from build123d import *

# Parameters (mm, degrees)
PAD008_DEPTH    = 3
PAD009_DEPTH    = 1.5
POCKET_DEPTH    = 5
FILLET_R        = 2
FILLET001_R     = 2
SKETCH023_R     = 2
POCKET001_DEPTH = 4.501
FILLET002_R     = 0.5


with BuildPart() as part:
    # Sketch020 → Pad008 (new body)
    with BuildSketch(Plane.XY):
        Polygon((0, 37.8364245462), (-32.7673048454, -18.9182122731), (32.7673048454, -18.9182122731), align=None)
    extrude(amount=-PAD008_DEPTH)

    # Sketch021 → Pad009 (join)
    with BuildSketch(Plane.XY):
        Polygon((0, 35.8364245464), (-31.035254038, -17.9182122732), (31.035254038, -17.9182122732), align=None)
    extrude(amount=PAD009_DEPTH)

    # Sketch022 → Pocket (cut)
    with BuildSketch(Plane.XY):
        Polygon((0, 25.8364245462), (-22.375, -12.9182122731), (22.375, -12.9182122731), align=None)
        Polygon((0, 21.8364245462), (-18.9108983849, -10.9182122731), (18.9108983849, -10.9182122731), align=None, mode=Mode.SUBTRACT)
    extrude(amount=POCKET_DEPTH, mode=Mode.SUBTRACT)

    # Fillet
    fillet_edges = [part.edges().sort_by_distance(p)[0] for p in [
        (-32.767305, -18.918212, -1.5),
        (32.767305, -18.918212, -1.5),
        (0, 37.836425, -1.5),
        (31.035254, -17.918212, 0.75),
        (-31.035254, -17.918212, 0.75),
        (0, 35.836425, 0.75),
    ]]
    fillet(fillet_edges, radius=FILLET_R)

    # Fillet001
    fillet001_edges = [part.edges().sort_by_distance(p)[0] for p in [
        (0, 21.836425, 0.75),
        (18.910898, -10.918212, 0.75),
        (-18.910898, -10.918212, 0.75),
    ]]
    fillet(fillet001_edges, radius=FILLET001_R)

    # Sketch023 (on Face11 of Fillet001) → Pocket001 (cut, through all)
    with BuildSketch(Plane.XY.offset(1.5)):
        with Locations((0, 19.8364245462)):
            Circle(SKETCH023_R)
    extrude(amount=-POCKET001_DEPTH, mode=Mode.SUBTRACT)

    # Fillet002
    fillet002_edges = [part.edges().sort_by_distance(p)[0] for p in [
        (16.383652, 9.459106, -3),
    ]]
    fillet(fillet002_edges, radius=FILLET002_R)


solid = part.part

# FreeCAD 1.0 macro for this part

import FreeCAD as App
import Part
import Sketcher
from FreeCAD import Vector
Q = App.Units.Quantity


def edges_at(feature, points):
    """Names of the edges that pass closest to the given points."""
    edges = feature.Shape.Edges
    near = lambda p: min(range(len(edges)), key=lambda i: edges[i].distToShape(Part.Vertex(*p))[0])
    return sorted({f"Edge{near(p) + 1}" for p in points})

doc = App.newDocument("Part")
body = doc.addObject("PartDesign::Body", "Body")

# Sketch on XY plane
sketch1 = body.newObject("Sketcher::SketchObject", "Sketch")
sketch1.AttachmentSupport = (doc.getObject("XY_Plane"), [""])
sketch1.MapMode = "FlatFace"
sketch1.addGeometry(Part.LineSegment(Vector(0, 38, 0), Vector(-33, -19, 0)), False)
sketch1.addGeometry(Part.LineSegment(Vector(-33, -19, 0), Vector(33, -19, 0)), False)
sketch1.addGeometry(Part.LineSegment(Vector(33, -19, 0), Vector(0, 38, 0)), False)
sketch1.addConstraint(Sketcher.Constraint("Coincident", 0, 2, 1, 1))
sketch1.addConstraint(Sketcher.Constraint("Coincident", 1, 2, 2, 1))
sketch1.addConstraint(Sketcher.Constraint("Coincident", 2, 2, 0, 1))
sketch1.addConstraint(Sketcher.Constraint("Horizontal", 1))
sketch1.addConstraint(Sketcher.Constraint("PointOnObject", 2, 2, -2))
sketch1.addConstraint(Sketcher.Constraint("Equal", 0, 2))
sketch1.addConstraint(Sketcher.Constraint("Angle", 0, Q("-120 deg")))
sketch1.addConstraint(Sketcher.Constraint("DistanceX", 1, 1, 1, 2, 65.53461))
sketch1.addConstraint(Sketcher.Constraint("DistanceY", 0, 2, -1, 1, 18.918212))
pad1 = body.newObject("PartDesign::Pad", "Pad")
pad1.Profile = sketch1
pad1.Length = 3
pad1.Reversed = True

# Sketch on XY plane
sketch2 = body.newObject("Sketcher::SketchObject", "Sketch001")
sketch2.AttachmentSupport = (doc.getObject("XY_Plane"), [""])
sketch2.MapMode = "FlatFace"
sketch2.addGeometry(Part.LineSegment(Vector(0, 36, 0), Vector(-31, -18, 0)), False)
sketch2.addGeometry(Part.LineSegment(Vector(-31, -18, 0), Vector(31, -18, 0)), False)
sketch2.addGeometry(Part.LineSegment(Vector(31, -18, 0), Vector(0, 36, 0)), False)
sketch2.addConstraint(Sketcher.Constraint("Coincident", 0, 2, 1, 1))
sketch2.addConstraint(Sketcher.Constraint("Coincident", 1, 2, 2, 1))
sketch2.addConstraint(Sketcher.Constraint("Coincident", 2, 2, 0, 1))
sketch2.addConstraint(Sketcher.Constraint("Horizontal", 1))
sketch2.addConstraint(Sketcher.Constraint("PointOnObject", 2, 2, -2))
sketch2.addConstraint(Sketcher.Constraint("Equal", 0, 2))
sketch2.addConstraint(Sketcher.Constraint("Angle", 0, Q("-120 deg")))
sketch2.addConstraint(Sketcher.Constraint("DistanceX", 1, 1, 1, 2, 62.070508))
sketch2.addConstraint(Sketcher.Constraint("DistanceY", 0, 2, -1, 1, 17.918212))
pad2 = body.newObject("PartDesign::Pad", "Pad001")
pad2.Profile = sketch2
pad2.Length = 1.5

# Sketch on XY plane
sketch3 = body.newObject("Sketcher::SketchObject", "Sketch002")
sketch3.AttachmentSupport = (doc.getObject("XY_Plane"), [""])
sketch3.MapMode = "FlatFace"
sketch3.addGeometry(Part.LineSegment(Vector(0, 26, 0), Vector(-22, -13, 0)), False)
sketch3.addGeometry(Part.LineSegment(Vector(-22, -13, 0), Vector(22, -13, 0)), False)
sketch3.addGeometry(Part.LineSegment(Vector(22, -13, 0), Vector(0, 26, 0)), False)
sketch3.addGeometry(Part.LineSegment(Vector(-19, -11, 0), Vector(0, 22, 0)), False)
sketch3.addGeometry(Part.LineSegment(Vector(0, 22, 0), Vector(19, -11, 0)), False)
sketch3.addGeometry(Part.LineSegment(Vector(19, -11, 0), Vector(-19, -11, 0)), False)
sketch3.addConstraint(Sketcher.Constraint("Coincident", 0, 2, 1, 1))
sketch3.addConstraint(Sketcher.Constraint("Coincident", 1, 2, 2, 1))
sketch3.addConstraint(Sketcher.Constraint("Coincident", 2, 2, 0, 1))
sketch3.addConstraint(Sketcher.Constraint("Coincident", 3, 2, 4, 1))
sketch3.addConstraint(Sketcher.Constraint("Coincident", 4, 2, 5, 1))
sketch3.addConstraint(Sketcher.Constraint("Coincident", 5, 2, 3, 1))
sketch3.addConstraint(Sketcher.Constraint("Horizontal", 1))
sketch3.addConstraint(Sketcher.Constraint("Horizontal", 5))
sketch3.addConstraint(Sketcher.Constraint("PointOnObject", 2, 2, -2))
sketch3.addConstraint(Sketcher.Constraint("PointOnObject", 3, 2, -2))
sketch3.addConstraint(Sketcher.Constraint("Parallel", 0, 3))
sketch3.addConstraint(Sketcher.Constraint("Parallel", 2, 4))
sketch3.addConstraint(Sketcher.Constraint("Equal", 0, 2))
sketch3.addConstraint(Sketcher.Constraint("Angle", 0, Q("-120 deg")))
sketch3.addConstraint(Sketcher.Constraint("DistanceY", 3, 2, 2, 2, 4.0))
sketch3.addConstraint(Sketcher.Constraint("DistanceY", 1, 2, 4, 2, 2.0))
sketch3.addConstraint(Sketcher.Constraint("DistanceX", 1, 1, 1, 2, 44.75))
sketch3.addConstraint(Sketcher.Constraint("DistanceY", 0, 2, -1, 1, 12.918212))
pocket1 = body.newObject("PartDesign::Pocket", "Pocket")
pocket1.Profile = sketch3
pocket1.Length = 5
pocket1.Reversed = True
doc.recompute()

fillet = body.newObject("PartDesign::Fillet", "Fillet")
fillet.Base = (pocket1, edges_at(pocket1, [
    (-32.767, -18.918, -1.5),
    (32.767, -18.918, -1.5),
    (0, 37.836, -1.5),
    (31.035, -17.918, 0.75),
    (-31.035, -17.918, 0.75),
    (0, 35.836, 0.75),
]))
fillet.Radius = 2
doc.recompute()

fillet2 = body.newObject("PartDesign::Fillet", "Fillet001")
fillet2.Base = (fillet, edges_at(fillet, [(0, 21.836, 0.75), (18.911, -10.918, 0.75), (-18.911, -10.918, 0.75)]))
fillet2.Radius = 2

# Sketch on XY plane
sketch4 = body.newObject("Sketcher::SketchObject", "Sketch003")
sketch4.AttachmentSupport = (doc.getObject("XY_Plane"), [""])
sketch4.MapMode = "FlatFace"
sketch4.AttachmentOffset = App.Placement(Vector(0, 0, 1.5), App.Rotation())
sketch4.addGeometry(Part.Circle(Vector(0, 19.8, 0), Vector(0, 0, 1), 2), False)
sketch4.addConstraint(Sketcher.Constraint("PointOnObject", 0, 3, -2))
sketch4.addConstraint(Sketcher.Constraint("Diameter", 0, 4.0))
sketch4.addConstraint(Sketcher.Constraint("DistanceY", -1, 1, 0, 3, 19.836425))
pocket2 = body.newObject("PartDesign::Pocket", "Pocket001")
pocket2.Profile = sketch4
pocket2.Type = "ThroughAll"
doc.recompute()

fillet3 = body.newObject("PartDesign::Fillet", "Fillet002")
fillet3.Base = (pocket2, edges_at(pocket2, [(16.384, 9.459, -3)]))
fillet3.Radius = 0.5

doc.recompute()
